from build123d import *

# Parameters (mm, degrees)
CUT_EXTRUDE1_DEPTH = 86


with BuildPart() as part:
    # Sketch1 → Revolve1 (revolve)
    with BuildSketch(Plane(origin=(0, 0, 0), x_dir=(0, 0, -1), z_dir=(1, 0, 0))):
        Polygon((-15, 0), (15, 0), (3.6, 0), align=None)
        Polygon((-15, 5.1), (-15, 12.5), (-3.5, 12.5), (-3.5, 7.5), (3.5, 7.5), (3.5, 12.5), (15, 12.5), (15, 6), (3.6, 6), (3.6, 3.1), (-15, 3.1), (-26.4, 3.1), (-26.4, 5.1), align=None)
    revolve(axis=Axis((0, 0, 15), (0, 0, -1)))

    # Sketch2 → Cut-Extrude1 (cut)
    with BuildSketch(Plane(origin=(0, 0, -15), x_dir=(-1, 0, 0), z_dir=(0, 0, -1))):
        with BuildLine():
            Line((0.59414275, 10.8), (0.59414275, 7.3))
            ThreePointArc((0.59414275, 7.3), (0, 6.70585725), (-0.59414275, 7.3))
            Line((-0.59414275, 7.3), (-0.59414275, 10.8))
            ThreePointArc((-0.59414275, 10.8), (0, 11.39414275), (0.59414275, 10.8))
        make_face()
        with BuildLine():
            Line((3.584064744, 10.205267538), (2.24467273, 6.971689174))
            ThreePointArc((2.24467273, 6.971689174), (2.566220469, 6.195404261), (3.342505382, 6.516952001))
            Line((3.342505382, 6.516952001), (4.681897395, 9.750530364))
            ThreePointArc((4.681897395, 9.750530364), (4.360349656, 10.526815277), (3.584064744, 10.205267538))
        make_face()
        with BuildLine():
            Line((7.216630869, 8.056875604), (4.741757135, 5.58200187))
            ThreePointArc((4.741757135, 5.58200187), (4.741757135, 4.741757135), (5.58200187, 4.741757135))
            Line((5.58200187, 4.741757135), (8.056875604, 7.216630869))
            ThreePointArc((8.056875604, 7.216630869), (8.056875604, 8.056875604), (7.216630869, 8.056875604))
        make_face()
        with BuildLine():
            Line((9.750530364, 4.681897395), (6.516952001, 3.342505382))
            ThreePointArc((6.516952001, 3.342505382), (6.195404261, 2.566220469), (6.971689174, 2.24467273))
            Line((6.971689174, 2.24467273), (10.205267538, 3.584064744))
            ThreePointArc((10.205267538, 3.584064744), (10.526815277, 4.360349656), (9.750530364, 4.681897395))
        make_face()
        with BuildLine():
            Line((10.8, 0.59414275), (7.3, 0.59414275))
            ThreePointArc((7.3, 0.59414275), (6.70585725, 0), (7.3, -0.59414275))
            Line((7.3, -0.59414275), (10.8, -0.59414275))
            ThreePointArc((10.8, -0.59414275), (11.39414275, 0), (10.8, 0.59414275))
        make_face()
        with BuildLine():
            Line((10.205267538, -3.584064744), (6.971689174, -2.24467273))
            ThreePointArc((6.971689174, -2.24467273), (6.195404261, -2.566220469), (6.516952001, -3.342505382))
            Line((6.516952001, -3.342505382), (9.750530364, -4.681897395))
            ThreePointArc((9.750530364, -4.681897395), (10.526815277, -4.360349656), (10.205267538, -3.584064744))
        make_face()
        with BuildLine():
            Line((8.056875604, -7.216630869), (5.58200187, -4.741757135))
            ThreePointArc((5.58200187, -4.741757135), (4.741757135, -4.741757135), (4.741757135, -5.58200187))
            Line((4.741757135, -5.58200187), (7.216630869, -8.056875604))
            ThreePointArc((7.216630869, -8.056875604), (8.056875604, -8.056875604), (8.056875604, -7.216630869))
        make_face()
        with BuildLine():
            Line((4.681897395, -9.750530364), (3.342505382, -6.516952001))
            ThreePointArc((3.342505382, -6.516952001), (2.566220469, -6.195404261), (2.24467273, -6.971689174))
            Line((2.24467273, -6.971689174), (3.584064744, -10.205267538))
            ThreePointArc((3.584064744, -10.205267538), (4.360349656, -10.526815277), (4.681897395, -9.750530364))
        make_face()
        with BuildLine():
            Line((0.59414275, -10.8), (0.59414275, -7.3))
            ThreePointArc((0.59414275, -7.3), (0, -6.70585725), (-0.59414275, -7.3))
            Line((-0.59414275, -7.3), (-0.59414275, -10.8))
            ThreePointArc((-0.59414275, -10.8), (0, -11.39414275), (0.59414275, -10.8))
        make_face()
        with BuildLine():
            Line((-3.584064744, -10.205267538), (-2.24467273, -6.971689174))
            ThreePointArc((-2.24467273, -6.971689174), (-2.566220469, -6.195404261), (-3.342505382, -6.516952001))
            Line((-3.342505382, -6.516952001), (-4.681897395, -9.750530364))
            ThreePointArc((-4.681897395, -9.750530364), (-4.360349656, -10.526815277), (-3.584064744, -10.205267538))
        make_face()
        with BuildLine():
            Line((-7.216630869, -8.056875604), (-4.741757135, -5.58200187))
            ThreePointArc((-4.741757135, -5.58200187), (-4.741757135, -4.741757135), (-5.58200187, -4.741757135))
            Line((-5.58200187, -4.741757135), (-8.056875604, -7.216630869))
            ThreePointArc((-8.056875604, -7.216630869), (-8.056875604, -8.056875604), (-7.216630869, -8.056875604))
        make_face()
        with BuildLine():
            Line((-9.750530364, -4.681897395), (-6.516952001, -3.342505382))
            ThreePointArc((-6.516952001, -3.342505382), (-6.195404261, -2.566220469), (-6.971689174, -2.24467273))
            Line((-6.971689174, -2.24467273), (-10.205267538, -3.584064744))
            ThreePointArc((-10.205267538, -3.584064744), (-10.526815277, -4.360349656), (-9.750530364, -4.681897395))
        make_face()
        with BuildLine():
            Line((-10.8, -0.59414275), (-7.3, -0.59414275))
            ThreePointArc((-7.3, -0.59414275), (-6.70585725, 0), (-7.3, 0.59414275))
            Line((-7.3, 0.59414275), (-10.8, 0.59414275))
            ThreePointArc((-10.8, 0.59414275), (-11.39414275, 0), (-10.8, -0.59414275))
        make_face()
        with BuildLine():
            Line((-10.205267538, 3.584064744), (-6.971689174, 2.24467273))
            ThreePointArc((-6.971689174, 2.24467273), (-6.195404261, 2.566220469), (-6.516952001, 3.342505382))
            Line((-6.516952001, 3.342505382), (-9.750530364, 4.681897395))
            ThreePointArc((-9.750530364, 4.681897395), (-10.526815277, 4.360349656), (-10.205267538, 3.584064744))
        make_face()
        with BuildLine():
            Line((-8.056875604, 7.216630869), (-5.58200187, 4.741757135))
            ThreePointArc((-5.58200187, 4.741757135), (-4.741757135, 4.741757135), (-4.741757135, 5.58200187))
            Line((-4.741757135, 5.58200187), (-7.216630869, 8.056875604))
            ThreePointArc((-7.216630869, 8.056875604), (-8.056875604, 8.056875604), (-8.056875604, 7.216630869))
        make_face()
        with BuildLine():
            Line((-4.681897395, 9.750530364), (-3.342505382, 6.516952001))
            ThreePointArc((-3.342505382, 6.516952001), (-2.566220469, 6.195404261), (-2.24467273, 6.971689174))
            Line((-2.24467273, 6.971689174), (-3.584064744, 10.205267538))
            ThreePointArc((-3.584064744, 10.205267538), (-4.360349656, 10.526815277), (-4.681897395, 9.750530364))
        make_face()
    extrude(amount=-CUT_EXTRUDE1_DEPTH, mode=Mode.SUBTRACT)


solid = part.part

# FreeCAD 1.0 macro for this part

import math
import FreeCAD as App
import Part
import Sketcher

V = App.Vector
Q = App.Units.Quantity


def add_polygon(sketch, points):
    """Adds a closed chain of lines whose ends are joined by coincident constraints."""
    first, n = sketch.GeometryCount, len(points)
    for a, b in zip(points, points[1:] + points[:1]):
        sketch.addGeometry(Part.LineSegment(App.Vector(*a, 0), App.Vector(*b, 0)), False)
    for i in range(n):
        sketch.addConstraint(Sketcher.Constraint("Coincident", first + i, 2, first + (i + 1) % n, 1))

doc = App.newDocument("Part")
params = doc.addObject("Spreadsheet::Sheet", "Params")
for row, (alias, value) in enumerate([
    ("sketch1_width", "2 mm"),
    ("sketch1_width2", "5 mm"),
    ("sketch1_height", "30 mm"),
    ("sketch1_height2", "7 mm"),
    ("sketch1_width3", "7.4 mm"),
    ("revolution_angle", "360 deg"),
    ("sketch2_width", "3.5 mm"),
    ("sketch2_length", "3.5 mm"),
    ("pocket1_length", "86 mm"),
], start=1):
    params.set(f"A{row}", alias)
    params.set(f"B{row}", "=" + value)
    params.setAlias(f"B{row}", alias)

body = doc.addObject("PartDesign::Body", "Body")

# Sketch on YZ plane
sketch1 = body.newObject("Sketcher::SketchObject", "Sketch")
sketch1.AttachmentSupport = (doc.getObject("YZ_Plane"), [""])
sketch1.MapMode = "FlatFace"
sketch1.addGeometry(Part.LineSegment(V(0, -15, 0), V(0, -3.6, 0)), False)  # 0
sketch1.addGeometry(Part.LineSegment(V(0, -3.6, 0), V(0, -15, 0)), False)  # 1
add_polygon(sketch1, [(12.5, 15), (5.1, 15), (5.1, 26.4), (3.1, 26.4), (3.1, -3.6), (6, -3.6), (6, -15), (12.5, -15), (12.5, -3.5), (7.5, -3.5), (7.5, 3.5), (12.5, 3.5)])  # lines 2-13
sketch1.addConstraint(Sketcher.Constraint("Coincident", 0, 1, 1, 2))
sketch1.addConstraint(Sketcher.Constraint("Coincident", 1, 1, 0, 2))
sketch1.addConstraint(Sketcher.Constraint("Vertical", 0))
sketch1.addConstraint(Sketcher.Constraint("Horizontal", 2))
sketch1.addConstraint(Sketcher.Constraint("Vertical", 3))
sketch1.addConstraint(Sketcher.Constraint("Horizontal", 4))
sketch1.addConstraint(Sketcher.Constraint("Vertical", 5))
sketch1.addConstraint(Sketcher.Constraint("Horizontal", 6))
sketch1.addConstraint(Sketcher.Constraint("Vertical", 7))
sketch1.addConstraint(Sketcher.Constraint("Horizontal", 8))
sketch1.addConstraint(Sketcher.Constraint("Vertical", 9))
sketch1.addConstraint(Sketcher.Constraint("Horizontal", 10))
sketch1.addConstraint(Sketcher.Constraint("Vertical", 11))
sketch1.addConstraint(Sketcher.Constraint("Horizontal", 12))
sketch1.addConstraint(Sketcher.Constraint("Vertical", 13))
sketch1.addConstraint(Sketcher.Constraint("Symmetric", 9, 2, 12, 2, -1))
sketch1.addConstraint(Sketcher.Constraint("PointOnObject", 0, 1, -2))
sketch1.addConstraint(Sketcher.Constraint("Horizontal", 1, 1, 5, 2))
sketch1.addConstraint(Sketcher.Constraint("Horizontal", 0, 1, 7, 2))
sketch1.addConstraint(Sketcher.Constraint("Equal", 1, 3))
sketch1.addConstraint(Sketcher.Constraint("Equal", 9, 13))
sketch1.addConstraint(Sketcher.Constraint("DistanceX", 4, 2, 4, 1, Q("2 mm")))
sketch1.addConstraint(Sketcher.Constraint("DistanceX", 10, 2, 10, 1, Q("5 mm")))
sketch1.addConstraint(Sketcher.Constraint("DistanceY", 5, 2, 5, 1, Q("30 mm")))
sketch1.addConstraint(Sketcher.Constraint("DistanceY", 11, 1, 11, 2, Q("7 mm")))
sketch1.addConstraint(Sketcher.Constraint("DistanceX", 2, 2, 2, 1, Q("7.4 mm")))
sketch1.addConstraint(Sketcher.Constraint("DistanceX", 6, 1, 6, 2, Q("2.9 mm")))
sketch1.addConstraint(Sketcher.Constraint("DistanceY", 0, 1, 0, 2, Q("11.4 mm")))
sketch1.addConstraint(Sketcher.Constraint("DistanceX", -1, 1, 6, 2, Q("6 mm")))
sketch1.setExpression("Constraints[33]", "Params.sketch1_width")
sketch1.setExpression("Constraints[34]", "Params.sketch1_width2")
sketch1.setExpression("Constraints[35]", "Params.sketch1_height")
sketch1.setExpression("Constraints[36]", "Params.sketch1_height2")
sketch1.setExpression("Constraints[37]", "Params.sketch1_width3")
revolution = body.newObject("PartDesign::Revolution", "Revolution")
revolution.Profile = sketch1
revolution.ReferenceAxis = (sketch1, ["V_Axis"])
revolution.setExpression("Angle", "Params.revolution_angle")

# Sketch on XY plane
sketch2 = body.newObject("Sketcher::SketchObject", "Sketch001")
sketch2.AttachmentSupport = (doc.getObject("XY_Plane"), [""])
sketch2.MapMode = "FlatFace"
sketch2.AttachmentOffset = App.Placement(V(0, 0, -15), App.Rotation())
sketch2.addGeometry(Part.LineSegment(V(-0.594143, 7.3, 0), V(-0.594143, 10.8, 0)), False)
sketch2.addGeometry(Part.ArcOfCircle(Part.Circle(V(0, 10.8, 0), V(0, 0, 1), 0.594143), math.radians(0), math.radians(180)), False)
sketch2.addGeometry(Part.LineSegment(V(0.594143, 10.8, 0), V(0.594143, 7.3, 0)), False)
sketch2.addGeometry(Part.ArcOfCircle(Part.Circle(V(0, 7.3, 0), V(0, 0, 1), 0.594143), math.radians(180), math.radians(360)), False)
sketch2.addGeometry(Part.LineSegment(V(-3.584065, 10.205268, 0), V(-2.244673, 6.971689, 0)), False)
sketch2.addGeometry(Part.ArcOfCircle(Part.Circle(V(-2.793589, 6.744321, 0), V(0, 0, 1), 0.594143), math.radians(-157.5), math.radians(22.5)), False)
sketch2.addGeometry(Part.LineSegment(V(-3.342505, 6.516952, 0), V(-4.681897, 9.75053, 0)), False)
sketch2.addGeometry(Part.ArcOfCircle(Part.Circle(V(-4.132981, 9.977899, 0), V(0, 0, 1), 0.594143), math.radians(22.5), math.radians(202.5)), False)
sketch2.addGeometry(Part.LineSegment(V(-7.216631, 8.056876, 0), V(-4.741757, 5.582002, 0)), False)
sketch2.addGeometry(Part.ArcOfCircle(Part.Circle(V(-5.16188, 5.16188, 0), V(0, 0, 1), 0.594143), math.radians(-135), math.radians(45)), False)
sketch2.addGeometry(Part.LineSegment(V(-5.582002, 4.741757, 0), V(-8.056876, 7.216631, 0)), False)
sketch2.addGeometry(Part.ArcOfCircle(Part.Circle(V(-7.636753, 7.636753, 0), V(0, 0, 1), 0.594143), math.radians(45), math.radians(225)), False)
sketch2.addGeometry(Part.LineSegment(V(-9.75053, 4.681897, 0), V(-6.516952, 3.342505, 0)), False)
sketch2.addGeometry(Part.ArcOfCircle(Part.Circle(V(-6.744321, 2.793589, 0), V(0, 0, 1), 0.594143), math.radians(-112.5), math.radians(67.5)), False)
sketch2.addGeometry(Part.LineSegment(V(-6.971689, 2.244673, 0), V(-10.205268, 3.584065, 0)), False)
sketch2.addGeometry(Part.ArcOfCircle(Part.Circle(V(-9.977899, 4.132981, 0), V(0, 0, 1), 0.594143), math.radians(67.5), math.radians(247.5)), False)
sketch2.addGeometry(Part.LineSegment(V(-10.8, 0.594143, 0), V(-7.3, 0.594143, 0)), False)
sketch2.addGeometry(Part.ArcOfCircle(Part.Circle(V(-7.3, 0, 0), V(0, 0, 1), 0.594143), math.radians(-90), math.radians(90)), False)
sketch2.addGeometry(Part.LineSegment(V(-7.3, -0.594143, 0), V(-10.8, -0.594143, 0)), False)
sketch2.addGeometry(Part.ArcOfCircle(Part.Circle(V(-10.8, 0, 0), V(0, 0, 1), 0.594143), math.radians(90), math.radians(270)), False)
sketch2.addGeometry(Part.LineSegment(V(-10.205268, -3.584065, 0), V(-6.971689, -2.244673, 0)), False)
sketch2.addGeometry(Part.ArcOfCircle(Part.Circle(V(-6.744321, -2.793589, 0), V(0, 0, 1), 0.594143), math.radians(-67.5), math.radians(112.5)), False)
sketch2.addGeometry(Part.LineSegment(V(-6.516952, -3.342505, 0), V(-9.75053, -4.681897, 0)), False)
sketch2.addGeometry(Part.ArcOfCircle(Part.Circle(V(-9.977899, -4.132981, 0), V(0, 0, 1), 0.594143), math.radians(112.5), math.radians(292.5)), False)
sketch2.addGeometry(Part.LineSegment(V(-8.056876, -7.216631, 0), V(-5.582002, -4.741757, 0)), False)
sketch2.addGeometry(Part.ArcOfCircle(Part.Circle(V(-5.16188, -5.16188, 0), V(0, 0, 1), 0.594143), math.radians(-45), math.radians(135)), False)
sketch2.addGeometry(Part.LineSegment(V(-4.741757, -5.582002, 0), V(-7.216631, -8.056876, 0)), False)
sketch2.addGeometry(Part.ArcOfCircle(Part.Circle(V(-7.636753, -7.636753, 0), V(0, 0, 1), 0.594143), math.radians(135), math.radians(315)), False)
sketch2.addGeometry(Part.LineSegment(V(-4.681897, -9.75053, 0), V(-3.342505, -6.516952, 0)), False)
sketch2.addGeometry(Part.ArcOfCircle(Part.Circle(V(-2.793589, -6.744321, 0), V(0, 0, 1), 0.594143), math.radians(-22.5), math.radians(157.5)), False)
sketch2.addGeometry(Part.LineSegment(V(-2.244673, -6.971689, 0), V(-3.584065, -10.205268, 0)), False)
sketch2.addGeometry(Part.ArcOfCircle(Part.Circle(V(-4.132981, -9.977899, 0), V(0, 0, 1), 0.594143), math.radians(157.5), math.radians(337.5)), False)
sketch2.addGeometry(Part.LineSegment(V(-0.594143, -10.8, 0), V(-0.594143, -7.3, 0)), False)
sketch2.addGeometry(Part.ArcOfCircle(Part.Circle(V(0, -7.3, 0), V(0, 0, 1), 0.594143), math.radians(0), math.radians(180)), False)
sketch2.addGeometry(Part.LineSegment(V(0.594143, -7.3, 0), V(0.594143, -10.8, 0)), False)
sketch2.addGeometry(Part.ArcOfCircle(Part.Circle(V(0, -10.8, 0), V(0, 0, 1), 0.594143), math.radians(180), math.radians(360)), False)
sketch2.addGeometry(Part.LineSegment(V(3.584065, -10.205268, 0), V(2.244673, -6.971689, 0)), False)
sketch2.addGeometry(Part.ArcOfCircle(Part.Circle(V(2.793589, -6.744321, 0), V(0, 0, 1), 0.594143), math.radians(22.5), math.radians(202.5)), False)
sketch2.addGeometry(Part.LineSegment(V(3.342505, -6.516952, 0), V(4.681897, -9.75053, 0)), False)
sketch2.addGeometry(Part.ArcOfCircle(Part.Circle(V(4.132981, -9.977899, 0), V(0, 0, 1), 0.594143), math.radians(-157.5), math.radians(22.5)), False)
sketch2.addGeometry(Part.LineSegment(V(7.216631, -8.056876, 0), V(4.741757, -5.582002, 0)), False)
sketch2.addGeometry(Part.ArcOfCircle(Part.Circle(V(5.16188, -5.16188, 0), V(0, 0, 1), 0.594143), math.radians(45), math.radians(225)), False)
sketch2.addGeometry(Part.LineSegment(V(5.582002, -4.741757, 0), V(8.056876, -7.216631, 0)), False)
sketch2.addGeometry(Part.ArcOfCircle(Part.Circle(V(7.636753, -7.636753, 0), V(0, 0, 1), 0.594143), math.radians(-135), math.radians(45)), False)
sketch2.addGeometry(Part.LineSegment(V(9.75053, -4.681897, 0), V(6.516952, -3.342505, 0)), False)
sketch2.addGeometry(Part.ArcOfCircle(Part.Circle(V(6.744321, -2.793589, 0), V(0, 0, 1), 0.594143), math.radians(67.5), math.radians(247.5)), False)
sketch2.addGeometry(Part.LineSegment(V(6.971689, -2.244673, 0), V(10.205268, -3.584065, 0)), False)
sketch2.addGeometry(Part.ArcOfCircle(Part.Circle(V(9.977899, -4.132981, 0), V(0, 0, 1), 0.594143), math.radians(-112.5), math.radians(67.5)), False)
sketch2.addGeometry(Part.LineSegment(V(10.8, -0.594143, 0), V(7.3, -0.594143, 0)), False)
sketch2.addGeometry(Part.ArcOfCircle(Part.Circle(V(7.3, 0, 0), V(0, 0, 1), 0.594143), math.radians(90), math.radians(270)), False)
sketch2.addGeometry(Part.LineSegment(V(7.3, 0.594143, 0), V(10.8, 0.594143, 0)), False)
sketch2.addGeometry(Part.ArcOfCircle(Part.Circle(V(10.8, 0, 0), V(0, 0, 1), 0.594143), math.radians(-90), math.radians(90)), False)
sketch2.addGeometry(Part.LineSegment(V(10.205268, 3.584065, 0), V(6.971689, 2.244673, 0)), False)
sketch2.addGeometry(Part.ArcOfCircle(Part.Circle(V(6.744321, 2.793589, 0), V(0, 0, 1), 0.594143), math.radians(112.5), math.radians(292.5)), False)
sketch2.addGeometry(Part.LineSegment(V(6.516952, 3.342505, 0), V(9.75053, 4.681897, 0)), False)
sketch2.addGeometry(Part.ArcOfCircle(Part.Circle(V(9.977899, 4.132981, 0), V(0, 0, 1), 0.594143), math.radians(-67.5), math.radians(112.5)), False)
sketch2.addGeometry(Part.LineSegment(V(8.056876, 7.216631, 0), V(5.582002, 4.741757, 0)), False)
sketch2.addGeometry(Part.ArcOfCircle(Part.Circle(V(5.16188, 5.16188, 0), V(0, 0, 1), 0.594143), math.radians(135), math.radians(315)), False)
sketch2.addGeometry(Part.LineSegment(V(4.741757, 5.582002, 0), V(7.216631, 8.056876, 0)), False)
sketch2.addGeometry(Part.ArcOfCircle(Part.Circle(V(7.636753, 7.636753, 0), V(0, 0, 1), 0.594143), math.radians(-45), math.radians(135)), False)
sketch2.addGeometry(Part.LineSegment(V(4.681897, 9.75053, 0), V(3.342505, 6.516952, 0)), False)
sketch2.addGeometry(Part.ArcOfCircle(Part.Circle(V(2.793589, 6.744321, 0), V(0, 0, 1), 0.594143), math.radians(157.5), math.radians(337.5)), False)
sketch2.addGeometry(Part.LineSegment(V(2.244673, 6.971689, 0), V(3.584065, 10.205268, 0)), False)
sketch2.addGeometry(Part.ArcOfCircle(Part.Circle(V(4.132981, 9.977899, 0), V(0, 0, 1), 0.594143), math.radians(-22.5), math.radians(157.5)), False)
sketch2.addConstraint(Sketcher.Constraint("Tangent", 0, 2, 1, 2))
sketch2.addConstraint(Sketcher.Constraint("Tangent", 1, 1, 2, 1))
sketch2.addConstraint(Sketcher.Constraint("Tangent", 2, 2, 3, 2))
sketch2.addConstraint(Sketcher.Constraint("Tangent", 3, 1, 0, 1))
sketch2.addConstraint(Sketcher.Constraint("Tangent", 4, 2, 5, 2))
sketch2.addConstraint(Sketcher.Constraint("Tangent", 5, 1, 6, 1))
sketch2.addConstraint(Sketcher.Constraint("Tangent", 6, 2, 7, 2))
sketch2.addConstraint(Sketcher.Constraint("Tangent", 7, 1, 4, 1))
sketch2.addConstraint(Sketcher.Constraint("Tangent", 8, 2, 9, 2))
sketch2.addConstraint(Sketcher.Constraint("Tangent", 9, 1, 10, 1))
sketch2.addConstraint(Sketcher.Constraint("Tangent", 10, 2, 11, 2))
sketch2.addConstraint(Sketcher.Constraint("Tangent", 11, 1, 8, 1))
sketch2.addConstraint(Sketcher.Constraint("Tangent", 12, 2, 13, 2))
sketch2.addConstraint(Sketcher.Constraint("Tangent", 13, 1, 14, 1))
sketch2.addConstraint(Sketcher.Constraint("Tangent", 14, 2, 15, 2))
sketch2.addConstraint(Sketcher.Constraint("Tangent", 15, 1, 12, 1))
sketch2.addConstraint(Sketcher.Constraint("Tangent", 16, 2, 17, 2))
sketch2.addConstraint(Sketcher.Constraint("Tangent", 17, 1, 18, 1))
sketch2.addConstraint(Sketcher.Constraint("Tangent", 18, 2, 19, 2))
sketch2.addConstraint(Sketcher.Constraint("Tangent", 19, 1, 16, 1))
sketch2.addConstraint(Sketcher.Constraint("Tangent", 20, 2, 21, 2))
sketch2.addConstraint(Sketcher.Constraint("Tangent", 21, 1, 22, 1))
sketch2.addConstraint(Sketcher.Constraint("Tangent", 22, 2, 23, 2))
sketch2.addConstraint(Sketcher.Constraint("Tangent", 23, 1, 20, 1))
sketch2.addConstraint(Sketcher.Constraint("Tangent", 24, 2, 25, 2))
sketch2.addConstraint(Sketcher.Constraint("Tangent", 25, 1, 26, 1))
sketch2.addConstraint(Sketcher.Constraint("Tangent", 26, 2, 27, 2))
sketch2.addConstraint(Sketcher.Constraint("Tangent", 27, 1, 24, 1))
sketch2.addConstraint(Sketcher.Constraint("Tangent", 28, 2, 29, 2))
sketch2.addConstraint(Sketcher.Constraint("Tangent", 29, 1, 30, 1))
sketch2.addConstraint(Sketcher.Constraint("Tangent", 30, 2, 31, 2))
sketch2.addConstraint(Sketcher.Constraint("Tangent", 31, 1, 28, 1))
sketch2.addConstraint(Sketcher.Constraint("Tangent", 32, 2, 33, 2))
sketch2.addConstraint(Sketcher.Constraint("Tangent", 33, 1, 34, 1))
sketch2.addConstraint(Sketcher.Constraint("Tangent", 34, 2, 35, 2))
sketch2.addConstraint(Sketcher.Constraint("Tangent", 35, 1, 32, 1))
sketch2.addConstraint(Sketcher.Constraint("Tangent", 36, 2, 37, 2))
sketch2.addConstraint(Sketcher.Constraint("Tangent", 37, 1, 38, 1))
sketch2.addConstraint(Sketcher.Constraint("Tangent", 38, 2, 39, 2))
sketch2.addConstraint(Sketcher.Constraint("Tangent", 39, 1, 36, 1))
sketch2.addConstraint(Sketcher.Constraint("Tangent", 40, 2, 41, 2))
sketch2.addConstraint(Sketcher.Constraint("Tangent", 41, 1, 42, 1))
sketch2.addConstraint(Sketcher.Constraint("Tangent", 42, 2, 43, 2))
sketch2.addConstraint(Sketcher.Constraint("Tangent", 43, 1, 40, 1))
sketch2.addConstraint(Sketcher.Constraint("Tangent", 44, 2, 45, 2))
sketch2.addConstraint(Sketcher.Constraint("Tangent", 45, 1, 46, 1))
sketch2.addConstraint(Sketcher.Constraint("Tangent", 46, 2, 47, 2))
sketch2.addConstraint(Sketcher.Constraint("Tangent", 47, 1, 44, 1))
sketch2.addConstraint(Sketcher.Constraint("Tangent", 48, 2, 49, 2))
sketch2.addConstraint(Sketcher.Constraint("Tangent", 49, 1, 50, 1))
sketch2.addConstraint(Sketcher.Constraint("Tangent", 50, 2, 51, 2))
sketch2.addConstraint(Sketcher.Constraint("Tangent", 51, 1, 48, 1))
sketch2.addConstraint(Sketcher.Constraint("Tangent", 52, 2, 53, 2))
sketch2.addConstraint(Sketcher.Constraint("Tangent", 53, 1, 54, 1))
sketch2.addConstraint(Sketcher.Constraint("Tangent", 54, 2, 55, 2))
sketch2.addConstraint(Sketcher.Constraint("Tangent", 55, 1, 52, 1))
sketch2.addConstraint(Sketcher.Constraint("Tangent", 56, 2, 57, 2))
sketch2.addConstraint(Sketcher.Constraint("Tangent", 57, 1, 58, 1))
sketch2.addConstraint(Sketcher.Constraint("Tangent", 58, 2, 59, 2))
sketch2.addConstraint(Sketcher.Constraint("Tangent", 59, 1, 56, 1))
sketch2.addConstraint(Sketcher.Constraint("Tangent", 60, 2, 61, 2))
sketch2.addConstraint(Sketcher.Constraint("Tangent", 61, 1, 62, 1))
sketch2.addConstraint(Sketcher.Constraint("Tangent", 62, 2, 63, 2))
sketch2.addConstraint(Sketcher.Constraint("Tangent", 63, 1, 60, 1))
sketch2.addConstraint(Sketcher.Constraint("Vertical", 0))
sketch2.addConstraint(Sketcher.Constraint("Vertical", 2))
sketch2.addConstraint(Sketcher.Constraint("Horizontal", 16))
sketch2.addConstraint(Sketcher.Constraint("Horizontal", 18))
sketch2.addConstraint(Sketcher.Constraint("Vertical", 32))
sketch2.addConstraint(Sketcher.Constraint("Vertical", 34))
sketch2.addConstraint(Sketcher.Constraint("Horizontal", 48))
sketch2.addConstraint(Sketcher.Constraint("Horizontal", 50))
sketch2.addConstraint(Sketcher.Constraint("Equal", 3, 5))
sketch2.addConstraint(Sketcher.Constraint("Equal", 5, 7))
sketch2.addConstraint(Sketcher.Constraint("Equal", 7, 9))
sketch2.addConstraint(Sketcher.Constraint("Equal", 9, 11))
sketch2.addConstraint(Sketcher.Constraint("Equal", 11, 13))
sketch2.addConstraint(Sketcher.Constraint("Equal", 13, 15))
sketch2.addConstraint(Sketcher.Constraint("Equal", 15, 17))
sketch2.addConstraint(Sketcher.Constraint("Equal", 19, 21))
sketch2.addConstraint(Sketcher.Constraint("Equal", 21, 23))
sketch2.addConstraint(Sketcher.Constraint("Equal", 23, 25))
sketch2.addConstraint(Sketcher.Constraint("Equal", 25, 27))
sketch2.addConstraint(Sketcher.Constraint("Equal", 27, 29))
sketch2.addConstraint(Sketcher.Constraint("Equal", 29, 31))
sketch2.addConstraint(Sketcher.Constraint("Equal", 31, 33))
sketch2.addConstraint(Sketcher.Constraint("Equal", 35, 37))
sketch2.addConstraint(Sketcher.Constraint("Equal", 37, 39))
sketch2.addConstraint(Sketcher.Constraint("Equal", 39, 41))
sketch2.addConstraint(Sketcher.Constraint("Equal", 41, 43))
sketch2.addConstraint(Sketcher.Constraint("Equal", 43, 45))
sketch2.addConstraint(Sketcher.Constraint("Equal", 45, 47))
sketch2.addConstraint(Sketcher.Constraint("Equal", 47, 49))
sketch2.addConstraint(Sketcher.Constraint("Equal", 51, 53))
sketch2.addConstraint(Sketcher.Constraint("Equal", 53, 55))
sketch2.addConstraint(Sketcher.Constraint("Equal", 55, 57))
sketch2.addConstraint(Sketcher.Constraint("Equal", 57, 59))
sketch2.addConstraint(Sketcher.Constraint("Equal", 59, 61))
sketch2.addConstraint(Sketcher.Constraint("Equal", 61, 63))
sketch2.addConstraint(Sketcher.Constraint("Symmetric", 3, 3, 33, 3, -1, 1))
sketch2.addConstraint(Sketcher.Constraint("Symmetric", 5, 3, 37, 3, -1, 1))
sketch2.addConstraint(Sketcher.Constraint("Symmetric", 7, 3, 39, 3, -1, 1))
sketch2.addConstraint(Sketcher.Constraint("Symmetric", 9, 3, 41, 3, -1, 1))
sketch2.addConstraint(Sketcher.Constraint("Symmetric", 11, 3, 43, 3, -1, 1))
sketch2.addConstraint(Sketcher.Constraint("Symmetric", 13, 3, 45, 3, -1, 1))
sketch2.addConstraint(Sketcher.Constraint("Symmetric", 15, 3, 47, 3, -1, 1))
sketch2.addConstraint(Sketcher.Constraint("Symmetric", 17, 3, 49, 3, -1, 1))
sketch2.addConstraint(Sketcher.Constraint("Symmetric", 21, 3, 53, 3, -1, 1))
sketch2.addConstraint(Sketcher.Constraint("Symmetric", 23, 3, 55, 3, -1, 1))
sketch2.addConstraint(Sketcher.Constraint("Symmetric", 25, 3, 57, 3, -1, 1))
sketch2.addConstraint(Sketcher.Constraint("Symmetric", 27, 3, 59, 3, -1, 1))
sketch2.addConstraint(Sketcher.Constraint("Symmetric", 29, 3, 61, 3, -1, 1))
sketch2.addConstraint(Sketcher.Constraint("Symmetric", 31, 3, 63, 3, -1, 1))
sketch2.addConstraint(Sketcher.Constraint("Symmetric", 29, 3, 37, 3, -2))
sketch2.addConstraint(Sketcher.Constraint("Symmetric", 31, 3, 39, 3, -2))
sketch2.addConstraint(Sketcher.Constraint("Symmetric", 25, 3, 41, 3, -2))
sketch2.addConstraint(Sketcher.Constraint("Symmetric", 27, 3, 43, 3, -2))
sketch2.addConstraint(Sketcher.Constraint("Symmetric", 21, 3, 45, 3, -2))
sketch2.addConstraint(Sketcher.Constraint("Symmetric", 23, 3, 47, 3, -2))
sketch2.addConstraint(Sketcher.Constraint("Symmetric", 19, 3, 51, 3, -2))
sketch2.addConstraint(Sketcher.Constraint("Symmetric", 1, 3, 35, 3, -1))
sketch2.addConstraint(Sketcher.Constraint("Perpendicular", 6, 20))
sketch2.addConstraint(Sketcher.Constraint("Perpendicular", 10, 24))
sketch2.addConstraint(Sketcher.Constraint("Equal", 50, 0))
sketch2.addConstraint(Sketcher.Constraint("Equal", 6, 8))
sketch2.addConstraint(Sketcher.Constraint("Equal", 10, 12))
sketch2.addConstraint(Sketcher.Constraint("DistanceX", 16, 1, 16, 2, Q("3.5 mm")))
sketch2.addConstraint(Sketcher.Constraint("Angle", 4, Q("-67.5 deg")))
sketch2.addConstraint(Sketcher.Constraint("Distance", 4, Q("3.5 mm")))
sketch2.addConstraint(Sketcher.Constraint("DistanceY", -1, 1, 1, 3, Q("10.8 mm")))
sketch2.addConstraint(Sketcher.Constraint("DistanceX", 17, 3, -1, 1, Q("7.3 mm")))
sketch2.addConstraint(Sketcher.Constraint("DistanceY", -1, 1, 8, 2, Q("5.582002 mm")))
sketch2.addConstraint(Sketcher.Constraint("DistanceX", 9, 1, -1, 1, Q("5.582002 mm")))
sketch2.addConstraint(Sketcher.Constraint("Radius", 1, Q("0.594143 mm")))
sketch2.addConstraint(Sketcher.Constraint("DistanceY", -1, 1, 7, 3, Q("9.977899 mm")))
sketch2.addConstraint(Sketcher.Constraint("DistanceX", 15, 3, -1, 1, Q("9.977899 mm")))
sketch2.addConstraint(Sketcher.Constraint("DistanceX", 5, 3, -1, 1, Q("2.793589 mm")))
sketch2.addConstraint(Sketcher.Constraint("DistanceY", -1, 1, 13, 3, Q("2.793589 mm")))
sketch2.setExpression("Constraints[126]", "Params.sketch2_width")
sketch2.setExpression("Constraints[128]", "Params.sketch2_length")
pocket1 = body.newObject("PartDesign::Pocket", "Pocket")
pocket1.Profile = sketch2
pocket1.setExpression("Length", "Params.pocket1_length")
pocket1.Reversed = True

doc.recompute()
